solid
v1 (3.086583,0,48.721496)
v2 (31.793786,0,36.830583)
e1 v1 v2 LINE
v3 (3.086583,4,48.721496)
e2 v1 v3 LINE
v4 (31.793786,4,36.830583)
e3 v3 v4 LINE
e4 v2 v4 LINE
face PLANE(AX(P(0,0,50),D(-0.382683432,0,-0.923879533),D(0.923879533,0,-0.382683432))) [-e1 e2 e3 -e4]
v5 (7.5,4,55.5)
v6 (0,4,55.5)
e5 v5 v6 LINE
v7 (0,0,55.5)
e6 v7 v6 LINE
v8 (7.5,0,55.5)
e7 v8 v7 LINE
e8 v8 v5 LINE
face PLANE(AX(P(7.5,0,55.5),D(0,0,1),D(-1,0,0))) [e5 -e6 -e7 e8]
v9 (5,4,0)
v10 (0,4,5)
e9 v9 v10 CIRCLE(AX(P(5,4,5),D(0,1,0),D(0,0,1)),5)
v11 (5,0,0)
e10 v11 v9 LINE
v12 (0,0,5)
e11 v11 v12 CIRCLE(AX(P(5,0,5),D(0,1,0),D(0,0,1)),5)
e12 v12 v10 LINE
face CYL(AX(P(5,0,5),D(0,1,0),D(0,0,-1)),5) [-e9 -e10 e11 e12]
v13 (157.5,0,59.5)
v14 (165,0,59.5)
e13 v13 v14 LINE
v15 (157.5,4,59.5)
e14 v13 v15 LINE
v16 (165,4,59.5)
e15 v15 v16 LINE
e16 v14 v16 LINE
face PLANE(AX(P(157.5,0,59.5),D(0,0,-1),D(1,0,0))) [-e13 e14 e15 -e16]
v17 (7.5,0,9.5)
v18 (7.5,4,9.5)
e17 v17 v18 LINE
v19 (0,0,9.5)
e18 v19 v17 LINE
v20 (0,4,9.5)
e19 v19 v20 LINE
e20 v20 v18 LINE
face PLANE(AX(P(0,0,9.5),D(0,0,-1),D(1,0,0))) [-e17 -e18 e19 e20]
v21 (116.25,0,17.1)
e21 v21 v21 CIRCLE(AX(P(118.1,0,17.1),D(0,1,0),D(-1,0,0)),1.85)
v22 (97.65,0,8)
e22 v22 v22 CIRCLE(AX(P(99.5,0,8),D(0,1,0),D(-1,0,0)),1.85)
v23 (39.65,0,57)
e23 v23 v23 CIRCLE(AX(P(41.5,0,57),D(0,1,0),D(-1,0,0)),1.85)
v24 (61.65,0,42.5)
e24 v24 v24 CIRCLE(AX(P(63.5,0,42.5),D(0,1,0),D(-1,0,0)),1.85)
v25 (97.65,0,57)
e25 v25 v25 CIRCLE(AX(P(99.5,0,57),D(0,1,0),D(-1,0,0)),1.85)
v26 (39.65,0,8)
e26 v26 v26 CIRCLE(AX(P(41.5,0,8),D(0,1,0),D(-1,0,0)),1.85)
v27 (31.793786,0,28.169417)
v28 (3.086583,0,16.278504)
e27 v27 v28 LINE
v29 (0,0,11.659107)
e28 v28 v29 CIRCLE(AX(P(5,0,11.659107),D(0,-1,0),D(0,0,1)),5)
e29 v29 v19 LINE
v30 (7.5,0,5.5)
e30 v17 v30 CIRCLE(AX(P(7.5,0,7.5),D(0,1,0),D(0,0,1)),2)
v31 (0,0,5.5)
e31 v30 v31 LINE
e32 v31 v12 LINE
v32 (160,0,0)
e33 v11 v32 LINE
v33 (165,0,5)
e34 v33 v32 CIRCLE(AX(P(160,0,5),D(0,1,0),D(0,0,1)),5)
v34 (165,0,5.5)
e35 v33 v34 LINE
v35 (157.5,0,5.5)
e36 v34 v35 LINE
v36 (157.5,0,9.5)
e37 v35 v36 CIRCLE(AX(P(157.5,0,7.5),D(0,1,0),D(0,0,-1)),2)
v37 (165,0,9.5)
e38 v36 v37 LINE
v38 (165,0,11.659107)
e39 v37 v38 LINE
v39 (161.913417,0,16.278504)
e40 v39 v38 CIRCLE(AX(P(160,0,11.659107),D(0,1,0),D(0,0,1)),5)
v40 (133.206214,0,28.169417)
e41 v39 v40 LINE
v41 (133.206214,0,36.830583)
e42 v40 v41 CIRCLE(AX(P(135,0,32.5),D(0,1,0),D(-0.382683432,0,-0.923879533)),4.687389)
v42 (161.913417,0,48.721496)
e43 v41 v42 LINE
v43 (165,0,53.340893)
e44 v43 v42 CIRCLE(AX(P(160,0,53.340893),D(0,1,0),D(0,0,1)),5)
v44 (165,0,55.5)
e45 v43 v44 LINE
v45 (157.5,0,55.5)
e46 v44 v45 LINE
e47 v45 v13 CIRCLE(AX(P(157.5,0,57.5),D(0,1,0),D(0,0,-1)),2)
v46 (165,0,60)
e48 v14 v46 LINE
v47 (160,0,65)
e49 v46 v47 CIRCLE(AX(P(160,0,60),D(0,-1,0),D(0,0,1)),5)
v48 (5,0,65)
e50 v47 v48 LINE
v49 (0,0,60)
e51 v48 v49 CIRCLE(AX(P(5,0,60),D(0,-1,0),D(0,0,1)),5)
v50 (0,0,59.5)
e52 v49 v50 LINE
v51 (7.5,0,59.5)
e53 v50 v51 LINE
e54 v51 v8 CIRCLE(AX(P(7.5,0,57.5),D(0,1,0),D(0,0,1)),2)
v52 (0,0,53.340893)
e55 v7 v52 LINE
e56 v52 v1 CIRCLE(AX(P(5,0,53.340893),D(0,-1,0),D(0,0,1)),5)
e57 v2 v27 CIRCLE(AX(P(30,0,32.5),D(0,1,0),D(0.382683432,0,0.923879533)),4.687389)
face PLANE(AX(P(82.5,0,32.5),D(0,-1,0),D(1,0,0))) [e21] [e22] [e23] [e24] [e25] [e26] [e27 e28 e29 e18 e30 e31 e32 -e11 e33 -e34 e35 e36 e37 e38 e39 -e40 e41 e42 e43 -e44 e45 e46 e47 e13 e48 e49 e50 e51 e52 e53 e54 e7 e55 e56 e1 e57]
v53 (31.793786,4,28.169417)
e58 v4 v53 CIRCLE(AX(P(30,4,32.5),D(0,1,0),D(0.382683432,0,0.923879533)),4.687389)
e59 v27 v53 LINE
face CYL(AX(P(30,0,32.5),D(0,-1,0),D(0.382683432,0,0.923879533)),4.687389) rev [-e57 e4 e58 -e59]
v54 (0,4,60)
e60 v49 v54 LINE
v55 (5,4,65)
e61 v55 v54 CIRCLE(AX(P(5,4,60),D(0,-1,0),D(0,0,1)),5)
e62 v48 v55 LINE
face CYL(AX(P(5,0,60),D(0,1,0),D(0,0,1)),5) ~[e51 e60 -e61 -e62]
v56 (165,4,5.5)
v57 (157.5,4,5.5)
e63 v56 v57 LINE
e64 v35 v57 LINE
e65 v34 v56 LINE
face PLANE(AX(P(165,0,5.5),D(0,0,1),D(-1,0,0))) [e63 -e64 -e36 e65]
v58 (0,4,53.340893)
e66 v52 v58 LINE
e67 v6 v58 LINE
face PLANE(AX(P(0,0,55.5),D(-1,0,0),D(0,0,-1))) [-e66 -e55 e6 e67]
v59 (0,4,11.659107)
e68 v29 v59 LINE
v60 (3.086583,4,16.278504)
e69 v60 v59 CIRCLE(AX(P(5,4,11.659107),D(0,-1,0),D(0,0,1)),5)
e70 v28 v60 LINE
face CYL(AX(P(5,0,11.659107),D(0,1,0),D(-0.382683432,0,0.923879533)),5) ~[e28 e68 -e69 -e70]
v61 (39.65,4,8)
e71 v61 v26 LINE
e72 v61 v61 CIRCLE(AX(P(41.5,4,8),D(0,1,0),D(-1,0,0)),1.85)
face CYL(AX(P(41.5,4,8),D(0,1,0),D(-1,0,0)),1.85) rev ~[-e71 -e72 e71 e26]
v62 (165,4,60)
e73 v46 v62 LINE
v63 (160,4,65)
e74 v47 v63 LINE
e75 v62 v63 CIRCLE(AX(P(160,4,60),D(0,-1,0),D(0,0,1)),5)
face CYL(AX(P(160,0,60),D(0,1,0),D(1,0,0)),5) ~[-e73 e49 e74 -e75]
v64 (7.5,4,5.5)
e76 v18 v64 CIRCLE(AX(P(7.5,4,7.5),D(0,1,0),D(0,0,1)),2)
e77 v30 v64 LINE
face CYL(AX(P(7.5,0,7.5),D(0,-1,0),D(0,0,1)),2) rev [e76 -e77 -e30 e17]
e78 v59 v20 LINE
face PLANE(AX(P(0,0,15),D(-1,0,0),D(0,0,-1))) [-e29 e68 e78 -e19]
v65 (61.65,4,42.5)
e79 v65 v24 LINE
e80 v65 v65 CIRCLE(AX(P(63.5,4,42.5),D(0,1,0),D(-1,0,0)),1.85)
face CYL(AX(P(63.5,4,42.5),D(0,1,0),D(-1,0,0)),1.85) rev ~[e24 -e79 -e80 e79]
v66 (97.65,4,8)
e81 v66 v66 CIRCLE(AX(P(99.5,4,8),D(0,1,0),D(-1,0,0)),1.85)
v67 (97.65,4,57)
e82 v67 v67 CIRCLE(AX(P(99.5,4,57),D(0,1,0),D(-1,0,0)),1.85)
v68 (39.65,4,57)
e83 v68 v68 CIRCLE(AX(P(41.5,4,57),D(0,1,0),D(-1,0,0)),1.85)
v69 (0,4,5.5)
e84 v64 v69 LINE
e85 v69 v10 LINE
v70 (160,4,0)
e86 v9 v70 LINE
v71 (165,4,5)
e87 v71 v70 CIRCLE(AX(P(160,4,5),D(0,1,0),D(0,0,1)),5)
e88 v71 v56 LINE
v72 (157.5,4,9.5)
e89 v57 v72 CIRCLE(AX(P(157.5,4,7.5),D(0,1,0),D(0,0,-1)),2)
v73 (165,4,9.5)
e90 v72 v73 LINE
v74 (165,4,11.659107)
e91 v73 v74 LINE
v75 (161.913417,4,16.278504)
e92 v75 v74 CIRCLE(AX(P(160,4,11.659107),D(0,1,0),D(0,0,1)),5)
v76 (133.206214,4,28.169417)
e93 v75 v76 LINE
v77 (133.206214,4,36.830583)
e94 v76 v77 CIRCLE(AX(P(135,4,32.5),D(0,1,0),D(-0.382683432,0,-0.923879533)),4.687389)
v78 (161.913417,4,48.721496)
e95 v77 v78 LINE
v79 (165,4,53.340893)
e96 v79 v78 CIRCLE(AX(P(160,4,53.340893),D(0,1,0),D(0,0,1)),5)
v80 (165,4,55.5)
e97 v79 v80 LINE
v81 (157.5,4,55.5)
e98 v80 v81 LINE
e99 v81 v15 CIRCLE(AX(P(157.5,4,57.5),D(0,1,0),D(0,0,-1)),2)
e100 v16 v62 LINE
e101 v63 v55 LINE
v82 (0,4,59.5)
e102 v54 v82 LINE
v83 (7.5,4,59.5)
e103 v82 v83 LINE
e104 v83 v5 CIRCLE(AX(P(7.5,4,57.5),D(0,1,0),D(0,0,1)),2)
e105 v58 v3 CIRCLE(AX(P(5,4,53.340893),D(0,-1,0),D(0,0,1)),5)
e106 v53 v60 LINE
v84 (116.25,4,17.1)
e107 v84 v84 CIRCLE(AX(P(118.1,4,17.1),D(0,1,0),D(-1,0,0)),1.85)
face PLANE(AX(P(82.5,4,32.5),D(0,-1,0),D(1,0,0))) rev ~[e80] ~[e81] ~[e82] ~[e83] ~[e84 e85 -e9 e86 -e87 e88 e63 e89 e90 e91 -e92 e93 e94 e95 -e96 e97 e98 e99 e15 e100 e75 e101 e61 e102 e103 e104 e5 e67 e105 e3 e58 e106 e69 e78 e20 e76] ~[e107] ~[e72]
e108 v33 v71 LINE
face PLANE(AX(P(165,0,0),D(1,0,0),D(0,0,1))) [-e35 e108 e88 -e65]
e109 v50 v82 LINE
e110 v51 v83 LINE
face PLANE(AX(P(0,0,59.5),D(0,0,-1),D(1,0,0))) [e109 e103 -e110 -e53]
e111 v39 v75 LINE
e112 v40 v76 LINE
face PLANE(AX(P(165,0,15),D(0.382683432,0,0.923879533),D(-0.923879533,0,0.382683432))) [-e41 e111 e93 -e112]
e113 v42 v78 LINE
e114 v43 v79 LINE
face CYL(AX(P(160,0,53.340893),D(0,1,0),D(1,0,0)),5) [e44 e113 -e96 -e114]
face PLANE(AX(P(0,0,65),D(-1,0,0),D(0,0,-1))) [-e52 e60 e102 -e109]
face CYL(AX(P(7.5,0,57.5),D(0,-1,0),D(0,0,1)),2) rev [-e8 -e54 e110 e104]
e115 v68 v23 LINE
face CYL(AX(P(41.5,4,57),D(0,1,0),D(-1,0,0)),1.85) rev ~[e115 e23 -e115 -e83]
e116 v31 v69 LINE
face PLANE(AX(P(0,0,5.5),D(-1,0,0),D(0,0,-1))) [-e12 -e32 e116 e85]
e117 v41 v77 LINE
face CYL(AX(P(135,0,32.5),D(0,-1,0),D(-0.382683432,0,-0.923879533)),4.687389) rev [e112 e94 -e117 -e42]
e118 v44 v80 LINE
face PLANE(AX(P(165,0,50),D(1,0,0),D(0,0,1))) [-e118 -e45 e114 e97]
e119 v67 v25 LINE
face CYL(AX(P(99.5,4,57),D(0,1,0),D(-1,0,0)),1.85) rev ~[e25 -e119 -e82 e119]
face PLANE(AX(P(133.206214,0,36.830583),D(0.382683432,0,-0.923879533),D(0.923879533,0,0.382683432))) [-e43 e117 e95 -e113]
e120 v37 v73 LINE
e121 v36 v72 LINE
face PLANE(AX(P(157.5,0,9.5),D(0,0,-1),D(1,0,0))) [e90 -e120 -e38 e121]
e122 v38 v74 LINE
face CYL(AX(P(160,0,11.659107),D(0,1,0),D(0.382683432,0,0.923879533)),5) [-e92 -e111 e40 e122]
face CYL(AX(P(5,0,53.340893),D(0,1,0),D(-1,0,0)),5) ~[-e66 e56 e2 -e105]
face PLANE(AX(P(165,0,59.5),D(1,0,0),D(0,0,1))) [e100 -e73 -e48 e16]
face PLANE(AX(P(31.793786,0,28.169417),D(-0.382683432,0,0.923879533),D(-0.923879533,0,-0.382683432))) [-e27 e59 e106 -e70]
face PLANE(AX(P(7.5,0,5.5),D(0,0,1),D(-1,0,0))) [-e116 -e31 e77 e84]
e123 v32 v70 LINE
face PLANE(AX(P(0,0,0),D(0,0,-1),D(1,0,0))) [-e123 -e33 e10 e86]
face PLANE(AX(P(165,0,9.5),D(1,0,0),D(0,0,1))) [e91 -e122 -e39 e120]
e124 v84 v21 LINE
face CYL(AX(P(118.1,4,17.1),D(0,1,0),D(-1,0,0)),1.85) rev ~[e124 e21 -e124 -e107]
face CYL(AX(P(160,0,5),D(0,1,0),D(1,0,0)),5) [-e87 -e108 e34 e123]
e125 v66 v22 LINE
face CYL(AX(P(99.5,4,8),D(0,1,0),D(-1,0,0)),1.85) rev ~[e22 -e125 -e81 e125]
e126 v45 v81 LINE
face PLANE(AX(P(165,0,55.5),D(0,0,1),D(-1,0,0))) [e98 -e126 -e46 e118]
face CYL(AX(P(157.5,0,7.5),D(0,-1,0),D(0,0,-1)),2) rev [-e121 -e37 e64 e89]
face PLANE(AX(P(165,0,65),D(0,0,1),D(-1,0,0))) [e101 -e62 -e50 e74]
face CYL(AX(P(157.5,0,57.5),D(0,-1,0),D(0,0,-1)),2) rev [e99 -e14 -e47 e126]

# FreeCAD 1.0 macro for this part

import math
import FreeCAD as App
import Part
import Sketcher
Q = App.Units.Quantity


def edges_at(feature, points):
    """Names of the edges that pass closest to the given points."""
    edges = feature.Shape.Edges
    near = lambda p: min(range(len(edges)), key=lambda i: edges[i].distToShape(Part.Vertex(*p))[0])
    return sorted({f"Edge{near(p) + 1}" for p in points})

doc = App.newDocument("Part")
body = doc.addObject("PartDesign::Body", "Body")

sketch1 = doc.addObject("Sketcher::SketchObject", "Sketch")
body.addObject(sketch1)
sketch1.AttachmentSupport = (doc.XZ_Plane, [""])
sketch1.MapMode = "FlatFace"
sketch1.addGeometry(Part.LineSegment(App.Vector(165, 59.5, 0), App.Vector(157.5, 59.5, 0)), False)
sketch1.addGeometry(Part.ArcOfCircle(Part.Circle(App.Vector(157.5, 57.5, 0), App.Vector(0, 0, 1), 2), math.radians(90), math.radians(270)), False)
sketch1.addGeometry(Part.LineSegment(App.Vector(157.5, 55.5, 0), App.Vector(165, 55.5, 0)), False)
sketch1.addGeometry(Part.LineSegment(App.Vector(165, 55.5, 0), App.Vector(165, 50, 0)), False)
sketch1.addGeometry(Part.LineSegment(App.Vector(165, 50, 0), App.Vector(133.206214, 36.830583, 0)), False)
sketch1.addGeometry(Part.ArcOfCircle(Part.Circle(App.Vector(135, 32.5, 0), App.Vector(0, 0, 1), 4.687389), math.radians(112.5), math.radians(247.5)), False)
sketch1.addGeometry(Part.LineSegment(App.Vector(133.206214, 28.169417, 0), App.Vector(165, 15, 0)), False)
sketch1.addGeometry(Part.LineSegment(App.Vector(165, 15, 0), App.Vector(165, 9.5, 0)), False)
sketch1.addGeometry(Part.LineSegment(App.Vector(165, 9.5, 0), App.Vector(157.5, 9.5, 0)), False)
sketch1.addGeometry(Part.ArcOfCircle(Part.Circle(App.Vector(157.5, 7.5, 0), App.Vector(0, 0, 1), 2), math.radians(90), math.radians(270)), False)
sketch1.addGeometry(Part.LineSegment(App.Vector(157.5, 5.5, 0), App.Vector(165, 5.5, 0)), False)
sketch1.addGeometry(Part.LineSegment(App.Vector(165, 5.5, 0), App.Vector(165, 0, 0)), False)
sketch1.addGeometry(Part.LineSegment(App.Vector(165, 0, 0), App.Vector(0, 0, 0)), False)
sketch1.addGeometry(Part.LineSegment(App.Vector(0, 0, 0), App.Vector(0, 5.5, 0)), False)
sketch1.addGeometry(Part.LineSegment(App.Vector(0, 5.5, 0), App.Vector(7.5, 5.5, 0)), False)
sketch1.addGeometry(Part.ArcOfCircle(Part.Circle(App.Vector(7.5, 7.5, 0), App.Vector(0, 0, 1), 2), math.radians(-90), math.radians(90)), False)
sketch1.addGeometry(Part.LineSegment(App.Vector(7.5, 9.5, 0), App.Vector(0, 9.5, 0)), False)
sketch1.addGeometry(Part.LineSegment(App.Vector(0, 9.5, 0), App.Vector(0, 15, 0)), False)
sketch1.addGeometry(Part.LineSegment(App.Vector(0, 15, 0), App.Vector(31.793786, 28.169417, 0)), False)
sketch1.addGeometry(Part.ArcOfCircle(Part.Circle(App.Vector(30, 32.5, 0), App.Vector(0, 0, 1), 4.687389), math.radians(-67.5), math.radians(67.5)), False)
sketch1.addGeometry(Part.LineSegment(App.Vector(31.793786, 36.830583, 0), App.Vector(0, 50, 0)), False)
sketch1.addGeometry(Part.LineSegment(App.Vector(0, 50, 0), App.Vector(0, 55.5, 0)), False)
sketch1.addGeometry(Part.LineSegment(App.Vector(0, 55.5, 0), App.Vector(7.5, 55.5, 0)), False)
sketch1.addGeometry(Part.ArcOfCircle(Part.Circle(App.Vector(7.5, 57.5, 0), App.Vector(0, 0, 1), 2), math.radians(-90), math.radians(90)), False)
sketch1.addGeometry(Part.LineSegment(App.Vector(7.5, 59.5, 0), App.Vector(0, 59.5, 0)), False)
sketch1.addGeometry(Part.LineSegment(App.Vector(0, 59.5, 0), App.Vector(0, 65, 0)), False)
sketch1.addGeometry(Part.LineSegment(App.Vector(0, 65, 0), App.Vector(165, 65, 0)), False)
sketch1.addGeometry(Part.LineSegment(App.Vector(165, 65, 0), App.Vector(165, 59.5, 0)), False)
sketch1.addConstraint(Sketcher.Constraint("Tangent", 0, 2, 1, 1))
sketch1.addConstraint(Sketcher.Constraint("Tangent", 1, 2, 2, 1))
sketch1.addConstraint(Sketcher.Constraint("Coincident", 2, 2, 3, 1))
sketch1.addConstraint(Sketcher.Constraint("Coincident", 3, 2, 4, 1))
sketch1.addConstraint(Sketcher.Constraint("Tangent", 4, 2, 5, 1))
sketch1.addConstraint(Sketcher.Constraint("Tangent", 5, 2, 6, 1))
sketch1.addConstraint(Sketcher.Constraint("Coincident", 6, 2, 7, 1))
sketch1.addConstraint(Sketcher.Constraint("Coincident", 7, 2, 8, 1))
sketch1.addConstraint(Sketcher.Constraint("Tangent", 8, 2, 9, 1))
sketch1.addConstraint(Sketcher.Constraint("Tangent", 9, 2, 10, 1))
sketch1.addConstraint(Sketcher.Constraint("Coincident", 10, 2, 11, 1))
sketch1.addConstraint(Sketcher.Constraint("Coincident", 11, 2, 12, 1))
sketch1.addConstraint(Sketcher.Constraint("Coincident", 12, 2, 13, 1))
sketch1.addConstraint(Sketcher.Constraint("Coincident", 13, 2, 14, 1))
sketch1.addConstraint(Sketcher.Constraint("Tangent", 14, 2, 15, 1))
sketch1.addConstraint(Sketcher.Constraint("Tangent", 15, 2, 16, 1))
sketch1.addConstraint(Sketcher.Constraint("Coincident", 16, 2, 17, 1))
sketch1.addConstraint(Sketcher.Constraint("Coincident", 17, 2, 18, 1))
sketch1.addConstraint(Sketcher.Constraint("Tangent", 18, 2, 19, 1))
sketch1.addConstraint(Sketcher.Constraint("Tangent", 19, 2, 20, 1))
sketch1.addConstraint(Sketcher.Constraint("Coincident", 20, 2, 21, 1))
sketch1.addConstraint(Sketcher.Constraint("Coincident", 21, 2, 22, 1))
sketch1.addConstraint(Sketcher.Constraint("Tangent", 22, 2, 23, 1))
sketch1.addConstraint(Sketcher.Constraint("Tangent", 23, 2, 24, 1))
sketch1.addConstraint(Sketcher.Constraint("Coincident", 24, 2, 25, 1))
sketch1.addConstraint(Sketcher.Constraint("Coincident", 25, 2, 26, 1))
sketch1.addConstraint(Sketcher.Constraint("Coincident", 26, 2, 27, 1))
sketch1.addConstraint(Sketcher.Constraint("Coincident", 27, 2, 0, 1))
sketch1.addConstraint(Sketcher.Constraint("Horizontal", 0))
sketch1.addConstraint(Sketcher.Constraint("Horizontal", 2))
sketch1.addConstraint(Sketcher.Constraint("Vertical", 3))
sketch1.addConstraint(Sketcher.Constraint("Vertical", 7))
sketch1.addConstraint(Sketcher.Constraint("Horizontal", 8))
sketch1.addConstraint(Sketcher.Constraint("Horizontal", 10))
sketch1.addConstraint(Sketcher.Constraint("Vertical", 11))
sketch1.addConstraint(Sketcher.Constraint("Horizontal", 12))
sketch1.addConstraint(Sketcher.Constraint("Vertical", 13))
sketch1.addConstraint(Sketcher.Constraint("Horizontal", 14))
sketch1.addConstraint(Sketcher.Constraint("Horizontal", 16))
sketch1.addConstraint(Sketcher.Constraint("Vertical", 17))
sketch1.addConstraint(Sketcher.Constraint("Vertical", 21))
sketch1.addConstraint(Sketcher.Constraint("Horizontal", 22))
sketch1.addConstraint(Sketcher.Constraint("Horizontal", 24))
sketch1.addConstraint(Sketcher.Constraint("Vertical", 25))
sketch1.addConstraint(Sketcher.Constraint("Horizontal", 26))
sketch1.addConstraint(Sketcher.Constraint("Vertical", 27))
sketch1.addConstraint(Sketcher.Constraint("Coincident", 12, 2, -1, 1))
sketch1.addConstraint(Sketcher.Constraint("Equal", 1, 9))
sketch1.addConstraint(Sketcher.Constraint("Equal", 9, 15))
sketch1.addConstraint(Sketcher.Constraint("Equal", 5, 19))
sketch1.addConstraint(Sketcher.Constraint("Equal", 15, 23))
sketch1.addConstraint(Sketcher.Constraint("PointOnObject", 16, 2, -2))
sketch1.addConstraint(Sketcher.Constraint("PointOnObject", 20, 2, -2))
sketch1.addConstraint(Sketcher.Constraint("PointOnObject", 24, 2, -2))
sketch1.addConstraint(Sketcher.Constraint("Parallel", 4, 18))
sketch1.addConstraint(Sketcher.Constraint("Parallel", 6, 20))
sketch1.addConstraint(Sketcher.Constraint("Horizontal", 9, 3, 15, 3))
sketch1.addConstraint(Sketcher.Constraint("Horizontal", 5, 3, 19, 3))
sketch1.addConstraint(Sketcher.Constraint("Horizontal", 1, 3, 23, 3))
sketch1.addConstraint(Sketcher.Constraint("Horizontal", 6, 2, 17, 2))
sketch1.addConstraint(Sketcher.Constraint("Horizontal", 5, 2, 18, 2))
sketch1.addConstraint(Sketcher.Constraint("Horizontal", 3, 2, 20, 2))
sketch1.addConstraint(Sketcher.Constraint("Vertical", 1, 3, 9, 3))
sketch1.addConstraint(Sketcher.Constraint("Vertical", 15, 3, 23, 3))
sketch1.addConstraint(Sketcher.Constraint("Vertical", 7, 2, 10, 2))
sketch1.addConstraint(Sketcher.Constraint("Vertical", 11, 2, 26, 2))
sketch1.addConstraint(Sketcher.Constraint("Equal", 10, 14))
sketch1.addConstraint(Sketcher.Constraint("Equal", 3, 7))
sketch1.addConstraint(Sketcher.Constraint("Equal", 7, 11))
sketch1.addConstraint(Sketcher.Constraint("Equal", 21, 25))
sketch1.addConstraint(Sketcher.Constraint("Radius", 1, Q("2 mm")))
sketch1.addConstraint(Sketcher.Constraint("DistanceX", 12, 2, 12, 1, Q("165 mm")))
sketch1.addConstraint(Sketcher.Constraint("DistanceX", 0, 2, 0, 1, Q("7.5 mm")))
sketch1.addConstraint(Sketcher.Constraint("DistanceY", 3, 2, 3, 1, Q("5.5 mm")))
sketch1.addConstraint(Sketcher.Constraint("DistanceX", -1, 1, 5, 3, Q("135 mm")))
sketch1.addConstraint(Sketcher.Constraint("DistanceY", -1, 1, 3, 2, Q("50 mm")))
sketch1.addConstraint(Sketcher.Constraint("Angle", 4, Q("-157.5 deg")))
pad1 = doc.addObject("PartDesign::Pad", "Pad")
body.addObject(pad1)
pad1.Profile = sketch1
pad1.Length = 4
pad1.Reversed = True

sketch2 = doc.addObject("Sketcher::SketchObject", "Sketch001")
body.addObject(sketch2)
sketch2.AttachmentSupport = (doc.XZ_Plane, [""])
sketch2.MapMode = "FlatFace"
sketch2.AttachmentOffset = App.Placement(App.Vector(0, 0, -4), App.Rotation())
sketch2.addGeometry(Part.Circle(App.Vector(99.5, 57, 0), App.Vector(0, 0, 1), 1.85), False)
sketch2.addGeometry(Part.Circle(App.Vector(41.5, 57, 0), App.Vector(0, 0, 1), 1.85), False)
sketch2.addGeometry(Part.Circle(App.Vector(41.5, 8, 0), App.Vector(0, 0, 1), 1.85), False)
sketch2.addGeometry(Part.Circle(App.Vector(99.5, 8, 0), App.Vector(0, 0, 1), 1.85), False)
sketch2.addGeometry(Part.Circle(App.Vector(63.5, 42.5, 0), App.Vector(0, 0, 1), 1.85), False)
sketch2.addGeometry(Part.Circle(App.Vector(118.1, 17.1, 0), App.Vector(0, 0, 1), 1.85), False)
sketch2.addConstraint(Sketcher.Constraint("Equal", 0, 1))
sketch2.addConstraint(Sketcher.Constraint("Equal", 1, 2))
sketch2.addConstraint(Sketcher.Constraint("Equal", 2, 3))
sketch2.addConstraint(Sketcher.Constraint("Equal", 3, 4))
sketch2.addConstraint(Sketcher.Constraint("Equal", 4, 5))
sketch2.addConstraint(Sketcher.Constraint("Horizontal", 0, 3, 1, 3))
sketch2.addConstraint(Sketcher.Constraint("Horizontal", 2, 3, 3, 3))
sketch2.addConstraint(Sketcher.Constraint("Vertical", 1, 3, 2, 3))
sketch2.addConstraint(Sketcher.Constraint("Vertical", 0, 3, 3, 3))
sketch2.addConstraint(Sketcher.Constraint("Diameter", 0, Q("3.7 mm")))
sketch2.addConstraint(Sketcher.Constraint("DistanceY", -1, 1, 0, 3, Q("57 mm")))
sketch2.addConstraint(Sketcher.Constraint("DistanceY", -1, 1, 2, 3, Q("8 mm")))
sketch2.addConstraint(Sketcher.Constraint("DistanceX", 1, 3, 0, 3, Q("58 mm")))
sketch2.addConstraint(Sketcher.Constraint("DistanceX", 1, 3, 4, 3, Q("22 mm")))
sketch2.addConstraint(Sketcher.Constraint("DistanceX", -1, 1, 0, 3, Q("99.5 mm")))
sketch2.addConstraint(Sketcher.Constraint("DistanceY", -1, 1, 4, 3, Q("42.5 mm")))
sketch2.addConstraint(Sketcher.Constraint("DistanceX", -1, 1, 5, 3, Q("118.1 mm")))
sketch2.addConstraint(Sketcher.Constraint("DistanceY", -1, 1, 5, 3, Q("17.1 mm")))
pocket1 = doc.addObject("PartDesign::Pocket", "Pocket")
body.addObject(pocket1)
pocket1.Profile = sketch2
pocket1.Type = "ThroughAll"
pocket1.Reversed = True
doc.recompute()

fillet = doc.addObject("PartDesign::Fillet", "Fillet")
body.addObject(fillet)
fillet.Base = (pocket1, edges_at(pocket1, [
    (165, 2, 65),
    (0, 2, 65),
    (0, 2, 50),
    (0, 2, 15),
    (0, 2, 0),
    (165, 2, 0),
    (165, 2, 15),
    (165, 2, 50),
]))
fillet.Radius = 5

doc.recompute()
